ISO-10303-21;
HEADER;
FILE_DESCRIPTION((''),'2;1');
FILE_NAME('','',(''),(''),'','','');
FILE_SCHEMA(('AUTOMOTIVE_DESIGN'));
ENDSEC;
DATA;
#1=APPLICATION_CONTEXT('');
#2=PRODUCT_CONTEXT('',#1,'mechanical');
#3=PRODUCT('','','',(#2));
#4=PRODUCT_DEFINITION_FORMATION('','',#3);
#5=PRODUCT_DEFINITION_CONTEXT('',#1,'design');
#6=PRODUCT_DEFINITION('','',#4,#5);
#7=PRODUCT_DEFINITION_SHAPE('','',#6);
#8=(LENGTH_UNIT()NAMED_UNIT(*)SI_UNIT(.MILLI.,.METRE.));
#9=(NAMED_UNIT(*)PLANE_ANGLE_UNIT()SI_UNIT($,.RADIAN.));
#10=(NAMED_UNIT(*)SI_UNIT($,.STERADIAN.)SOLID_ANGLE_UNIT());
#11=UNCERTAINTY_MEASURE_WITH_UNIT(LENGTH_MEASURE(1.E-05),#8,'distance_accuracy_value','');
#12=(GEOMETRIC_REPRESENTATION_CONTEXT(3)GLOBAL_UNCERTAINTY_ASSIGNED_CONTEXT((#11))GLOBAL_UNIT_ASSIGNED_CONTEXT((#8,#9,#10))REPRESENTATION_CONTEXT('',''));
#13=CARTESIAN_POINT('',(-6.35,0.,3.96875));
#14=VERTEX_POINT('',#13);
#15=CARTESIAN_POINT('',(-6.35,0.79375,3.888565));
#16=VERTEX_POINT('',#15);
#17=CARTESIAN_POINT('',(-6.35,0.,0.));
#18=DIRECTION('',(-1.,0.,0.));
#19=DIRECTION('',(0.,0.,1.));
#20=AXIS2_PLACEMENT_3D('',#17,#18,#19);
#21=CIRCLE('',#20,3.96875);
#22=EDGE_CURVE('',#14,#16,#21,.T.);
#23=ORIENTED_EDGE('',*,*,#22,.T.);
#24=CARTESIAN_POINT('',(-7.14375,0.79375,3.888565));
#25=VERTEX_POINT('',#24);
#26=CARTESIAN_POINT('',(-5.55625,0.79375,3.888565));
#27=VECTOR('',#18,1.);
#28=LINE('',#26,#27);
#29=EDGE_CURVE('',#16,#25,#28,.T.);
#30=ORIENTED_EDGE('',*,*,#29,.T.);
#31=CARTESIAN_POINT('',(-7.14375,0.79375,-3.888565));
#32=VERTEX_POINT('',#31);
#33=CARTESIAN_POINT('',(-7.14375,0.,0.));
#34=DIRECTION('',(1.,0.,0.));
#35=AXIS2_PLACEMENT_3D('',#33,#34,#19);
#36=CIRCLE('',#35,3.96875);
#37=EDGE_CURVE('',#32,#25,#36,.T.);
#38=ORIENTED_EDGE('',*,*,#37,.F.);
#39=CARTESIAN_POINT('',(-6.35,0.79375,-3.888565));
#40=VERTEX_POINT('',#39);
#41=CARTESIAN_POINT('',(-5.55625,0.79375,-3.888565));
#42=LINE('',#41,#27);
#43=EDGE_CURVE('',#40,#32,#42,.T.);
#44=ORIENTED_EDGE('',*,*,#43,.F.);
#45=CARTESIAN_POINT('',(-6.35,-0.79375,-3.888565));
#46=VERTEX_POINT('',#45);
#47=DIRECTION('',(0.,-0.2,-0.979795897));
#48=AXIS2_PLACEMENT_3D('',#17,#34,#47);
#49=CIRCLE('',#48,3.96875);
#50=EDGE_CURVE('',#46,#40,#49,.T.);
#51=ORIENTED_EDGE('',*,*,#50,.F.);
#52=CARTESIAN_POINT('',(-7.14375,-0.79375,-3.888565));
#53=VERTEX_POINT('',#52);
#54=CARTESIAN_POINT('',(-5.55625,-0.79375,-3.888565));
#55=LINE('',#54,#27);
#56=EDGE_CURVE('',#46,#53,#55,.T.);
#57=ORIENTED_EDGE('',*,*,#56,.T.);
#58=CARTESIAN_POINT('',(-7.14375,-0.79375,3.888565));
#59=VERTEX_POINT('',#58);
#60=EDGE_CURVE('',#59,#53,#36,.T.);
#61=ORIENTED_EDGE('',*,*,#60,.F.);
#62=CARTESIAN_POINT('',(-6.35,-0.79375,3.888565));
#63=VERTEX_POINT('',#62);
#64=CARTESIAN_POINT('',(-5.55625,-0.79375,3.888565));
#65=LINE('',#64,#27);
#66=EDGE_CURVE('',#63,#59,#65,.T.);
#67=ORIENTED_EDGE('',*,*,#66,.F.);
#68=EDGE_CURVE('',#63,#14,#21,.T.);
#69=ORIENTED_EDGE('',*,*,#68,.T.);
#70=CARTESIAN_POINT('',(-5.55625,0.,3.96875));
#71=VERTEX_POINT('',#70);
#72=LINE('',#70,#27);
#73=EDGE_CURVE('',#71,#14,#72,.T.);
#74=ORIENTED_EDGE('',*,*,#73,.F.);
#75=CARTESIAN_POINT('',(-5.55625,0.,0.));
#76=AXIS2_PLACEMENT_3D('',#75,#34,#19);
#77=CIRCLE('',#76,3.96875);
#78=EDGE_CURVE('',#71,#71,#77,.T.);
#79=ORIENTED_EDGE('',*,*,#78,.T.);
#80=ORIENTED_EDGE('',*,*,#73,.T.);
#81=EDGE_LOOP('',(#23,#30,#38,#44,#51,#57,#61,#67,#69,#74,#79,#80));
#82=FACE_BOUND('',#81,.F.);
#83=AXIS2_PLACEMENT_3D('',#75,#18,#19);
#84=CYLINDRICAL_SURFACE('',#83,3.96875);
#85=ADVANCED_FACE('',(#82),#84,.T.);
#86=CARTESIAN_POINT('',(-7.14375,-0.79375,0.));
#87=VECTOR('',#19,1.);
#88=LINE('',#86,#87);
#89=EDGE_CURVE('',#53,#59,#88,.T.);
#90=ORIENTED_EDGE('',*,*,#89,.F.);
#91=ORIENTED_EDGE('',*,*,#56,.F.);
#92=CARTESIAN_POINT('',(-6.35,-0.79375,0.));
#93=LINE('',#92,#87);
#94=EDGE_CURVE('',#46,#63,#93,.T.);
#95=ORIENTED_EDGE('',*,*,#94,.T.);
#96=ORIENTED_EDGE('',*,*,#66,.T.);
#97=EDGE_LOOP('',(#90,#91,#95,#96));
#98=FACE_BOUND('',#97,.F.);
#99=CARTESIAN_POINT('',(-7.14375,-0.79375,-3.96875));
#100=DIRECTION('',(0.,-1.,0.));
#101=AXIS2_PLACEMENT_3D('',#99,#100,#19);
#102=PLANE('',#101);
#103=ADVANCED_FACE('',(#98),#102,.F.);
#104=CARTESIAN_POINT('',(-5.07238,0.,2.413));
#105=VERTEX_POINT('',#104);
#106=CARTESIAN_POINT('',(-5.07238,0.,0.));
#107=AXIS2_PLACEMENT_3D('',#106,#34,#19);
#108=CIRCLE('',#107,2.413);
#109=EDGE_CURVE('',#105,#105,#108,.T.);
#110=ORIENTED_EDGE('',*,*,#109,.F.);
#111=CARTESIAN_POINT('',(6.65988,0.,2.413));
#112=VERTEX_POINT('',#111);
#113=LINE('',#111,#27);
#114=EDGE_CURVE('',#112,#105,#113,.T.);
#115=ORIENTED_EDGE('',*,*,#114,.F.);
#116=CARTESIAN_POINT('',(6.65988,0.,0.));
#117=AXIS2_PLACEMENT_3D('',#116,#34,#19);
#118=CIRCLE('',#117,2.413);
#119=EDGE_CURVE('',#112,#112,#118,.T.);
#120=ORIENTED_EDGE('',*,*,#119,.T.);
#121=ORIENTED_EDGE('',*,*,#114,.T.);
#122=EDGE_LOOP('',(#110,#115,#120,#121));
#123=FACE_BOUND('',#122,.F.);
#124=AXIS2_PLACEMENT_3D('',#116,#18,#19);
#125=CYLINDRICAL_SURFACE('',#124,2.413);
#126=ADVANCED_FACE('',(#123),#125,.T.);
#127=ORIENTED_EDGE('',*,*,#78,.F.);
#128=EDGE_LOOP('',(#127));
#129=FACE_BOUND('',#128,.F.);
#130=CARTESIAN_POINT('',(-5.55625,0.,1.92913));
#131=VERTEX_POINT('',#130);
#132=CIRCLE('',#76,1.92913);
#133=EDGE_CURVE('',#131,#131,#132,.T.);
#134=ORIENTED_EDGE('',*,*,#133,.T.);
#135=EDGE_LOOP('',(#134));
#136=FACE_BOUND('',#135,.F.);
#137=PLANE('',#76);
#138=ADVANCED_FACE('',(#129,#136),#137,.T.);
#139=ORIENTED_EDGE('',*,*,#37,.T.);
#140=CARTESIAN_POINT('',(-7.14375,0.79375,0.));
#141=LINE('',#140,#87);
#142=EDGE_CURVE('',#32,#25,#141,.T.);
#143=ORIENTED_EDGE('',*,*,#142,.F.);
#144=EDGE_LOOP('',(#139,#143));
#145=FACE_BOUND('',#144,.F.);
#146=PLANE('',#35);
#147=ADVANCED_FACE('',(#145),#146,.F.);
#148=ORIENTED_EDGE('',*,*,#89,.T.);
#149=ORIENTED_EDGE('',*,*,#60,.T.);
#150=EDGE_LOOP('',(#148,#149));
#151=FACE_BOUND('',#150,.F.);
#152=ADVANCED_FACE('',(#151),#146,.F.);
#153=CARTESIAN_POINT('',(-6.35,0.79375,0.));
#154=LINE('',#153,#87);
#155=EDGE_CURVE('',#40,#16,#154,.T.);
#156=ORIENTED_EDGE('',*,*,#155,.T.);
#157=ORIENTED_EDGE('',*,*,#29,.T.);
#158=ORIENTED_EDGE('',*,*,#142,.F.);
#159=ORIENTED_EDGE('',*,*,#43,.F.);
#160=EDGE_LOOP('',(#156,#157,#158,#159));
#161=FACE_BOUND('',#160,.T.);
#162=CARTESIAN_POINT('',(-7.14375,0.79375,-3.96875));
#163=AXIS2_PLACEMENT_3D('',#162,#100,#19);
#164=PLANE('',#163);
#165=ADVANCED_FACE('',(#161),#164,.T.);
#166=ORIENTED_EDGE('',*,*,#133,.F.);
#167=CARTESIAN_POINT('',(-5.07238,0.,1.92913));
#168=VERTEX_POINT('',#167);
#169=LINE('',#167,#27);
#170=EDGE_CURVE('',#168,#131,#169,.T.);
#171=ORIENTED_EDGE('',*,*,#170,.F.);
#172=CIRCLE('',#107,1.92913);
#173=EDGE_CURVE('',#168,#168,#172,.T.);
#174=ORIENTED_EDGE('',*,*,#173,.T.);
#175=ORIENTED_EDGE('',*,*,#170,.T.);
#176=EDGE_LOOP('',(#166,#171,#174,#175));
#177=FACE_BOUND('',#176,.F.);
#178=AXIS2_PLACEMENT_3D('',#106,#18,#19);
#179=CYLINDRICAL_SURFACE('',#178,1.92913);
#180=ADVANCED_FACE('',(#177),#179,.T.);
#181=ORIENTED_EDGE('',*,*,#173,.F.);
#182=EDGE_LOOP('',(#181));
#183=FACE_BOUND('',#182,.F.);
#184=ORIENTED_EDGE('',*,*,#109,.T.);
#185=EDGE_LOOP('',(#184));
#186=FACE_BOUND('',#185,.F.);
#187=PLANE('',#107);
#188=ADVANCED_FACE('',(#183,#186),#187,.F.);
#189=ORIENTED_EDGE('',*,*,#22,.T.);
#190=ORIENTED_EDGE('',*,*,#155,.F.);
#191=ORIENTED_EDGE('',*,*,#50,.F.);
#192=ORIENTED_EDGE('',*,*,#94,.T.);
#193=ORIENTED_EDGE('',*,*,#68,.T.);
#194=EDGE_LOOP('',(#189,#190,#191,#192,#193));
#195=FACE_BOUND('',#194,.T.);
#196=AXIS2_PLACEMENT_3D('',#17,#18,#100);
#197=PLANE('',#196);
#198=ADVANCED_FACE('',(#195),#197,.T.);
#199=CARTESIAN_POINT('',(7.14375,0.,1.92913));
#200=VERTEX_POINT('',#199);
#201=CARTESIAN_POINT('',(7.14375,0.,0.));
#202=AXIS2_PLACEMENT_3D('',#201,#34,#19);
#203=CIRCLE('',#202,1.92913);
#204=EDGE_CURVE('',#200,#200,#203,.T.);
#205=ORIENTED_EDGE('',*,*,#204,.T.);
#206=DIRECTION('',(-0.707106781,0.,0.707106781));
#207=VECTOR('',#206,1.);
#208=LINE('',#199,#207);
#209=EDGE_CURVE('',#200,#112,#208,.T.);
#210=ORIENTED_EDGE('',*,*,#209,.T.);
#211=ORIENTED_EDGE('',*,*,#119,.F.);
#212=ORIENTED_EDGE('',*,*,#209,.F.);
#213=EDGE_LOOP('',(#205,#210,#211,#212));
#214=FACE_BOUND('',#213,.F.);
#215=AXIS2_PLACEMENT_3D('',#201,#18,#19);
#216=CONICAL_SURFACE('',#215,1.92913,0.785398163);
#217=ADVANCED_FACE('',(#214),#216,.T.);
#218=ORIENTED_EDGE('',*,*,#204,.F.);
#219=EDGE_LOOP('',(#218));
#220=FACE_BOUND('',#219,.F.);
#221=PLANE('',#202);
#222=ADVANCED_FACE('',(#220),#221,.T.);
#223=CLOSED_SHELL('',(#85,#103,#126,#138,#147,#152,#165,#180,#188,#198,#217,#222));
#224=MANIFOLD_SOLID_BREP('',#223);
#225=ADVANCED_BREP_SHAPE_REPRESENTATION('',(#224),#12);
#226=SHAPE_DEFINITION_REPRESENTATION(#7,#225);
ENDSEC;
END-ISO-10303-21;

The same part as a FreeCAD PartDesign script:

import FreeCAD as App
import Part
import Sketcher
from FreeCAD import Vector
Q = App.Units.Quantity

doc = App.newDocument("Part")
body = doc.addObject("PartDesign::Body", "Body")

# Sketch on XZ plane
sketch1 = doc.addObject("Sketcher::SketchObject", "Sketch")
body.addObject(sketch1)
sketch1.AttachmentSupport = (doc.XZ_Plane, [""])
sketch1.MapMode = "FlatFace"
sketch1.addGeometry([
    Part.LineSegment(Vector(-7.14375, 3.96875, 0), Vector(-7.14375, 0, 0)),  # 0
    Part.LineSegment(Vector(-7.14375, 0, 0), Vector(7.14375, 0, 0)),  # 1
    Part.LineSegment(Vector(7.14375, 0, 0), Vector(7.14375, 1.92913, 0)),  # 2
    Part.LineSegment(Vector(7.14375, 1.92913, 0), Vector(6.65988, 2.413, 0)),  # 3
    Part.LineSegment(Vector(6.65988, 2.413, 0), Vector(-5.07238, 2.413, 0)),  # 4
    Part.LineSegment(Vector(-5.07238, 2.413, 0), Vector(-5.07238, 1.92913, 0)),  # 5
    Part.LineSegment(Vector(-5.07238, 1.92913, 0), Vector(-5.55625, 1.92913, 0)),  # 6
    Part.LineSegment(Vector(-5.55625, 1.92913, 0), Vector(-5.55625, 3.96875, 0)),  # 7
    Part.LineSegment(Vector(-5.55625, 3.96875, 0), Vector(-7.14375, 3.96875, 0)),  # 8
], False)
sketch1.addConstraint([
    Sketcher.Constraint("Coincident", 0, 2, 1, 1),
    Sketcher.Constraint("Coincident", 1, 2, 2, 1),
    Sketcher.Constraint("Coincident", 2, 2, 3, 1),
    Sketcher.Constraint("Coincident", 3, 2, 4, 1),
    Sketcher.Constraint("Coincident", 4, 2, 5, 1),
    Sketcher.Constraint("Coincident", 5, 2, 6, 1),
    Sketcher.Constraint("Coincident", 6, 2, 7, 1),
    Sketcher.Constraint("Coincident", 7, 2, 8, 1),
    Sketcher.Constraint("Coincident", 8, 2, 0, 1),
    Sketcher.Constraint("Vertical", 0),
    Sketcher.Constraint("Horizontal", 1),
    Sketcher.Constraint("Vertical", 2),
    Sketcher.Constraint("Horizontal", 4),
    Sketcher.Constraint("Vertical", 5),
    Sketcher.Constraint("Horizontal", 6),
    Sketcher.Constraint("Vertical", 7),
    Sketcher.Constraint("Horizontal", 8),
    Sketcher.Constraint("Symmetric", 0, 2, 1, 2, -1, 1),
    Sketcher.Constraint("Horizontal", 2, 2, 5, 2),
    Sketcher.Constraint("Equal", 6, 5),
    Sketcher.Constraint("Angle", 3, Q("135 deg")),
    Sketcher.Constraint("DistanceX", 6, 2, 2, 2, Q("0.5 in")),
    Sketcher.Constraint("DistanceX", 1, 1, 1, 2, Q("0.5625 in")),
    Sketcher.Constraint("DistanceY", 0, 2, 0, 1, Q("0.15625 in")),
    Sketcher.Constraint("DistanceX", 4, 2, 4, 1, Q("0.4619 in")),
    Sketcher.Constraint("DistanceY", 7, 1, 7, 2, Q("0.0803 in")),
])
revolution = doc.addObject("PartDesign::Revolution", "Revolution")
body.addObject(revolution)
revolution.Profile = sketch1
revolution.ReferenceAxis = (sketch1, ["H_Axis"])
revolution.Angle = 360

# Sketch on YZ plane
sketch2 = doc.addObject("Sketcher::SketchObject", "Sketch001")
body.addObject(sketch2)
sketch2.AttachmentSupport = (doc.YZ_Plane, [""])
sketch2.MapMode = "FlatFace"
sketch2.AttachmentOffset = App.Placement(Vector(0, 0, -0.28125 * 25.4), App.Rotation())
sketch2.addGeometry([
    Part.LineSegment(Vector(0.79375, 3.96875, 0), Vector(0.79375, -3.96875, 0)),
    Part.LineSegment(Vector(0.79375, -3.96875, 0), Vector(-0.79375, -3.96875, 0)),
    Part.LineSegment(Vector(-0.79375, -3.96875, 0), Vector(-0.79375, 3.96875, 0)),
    Part.LineSegment(Vector(-0.79375, 3.96875, 0), Vector(0.79375, 3.96875, 0)),
], False)
sketch2.addConstraint([
    Sketcher.Constraint("Coincident", 0, 2, 1, 1),
    Sketcher.Constraint("Coincident", 1, 2, 2, 1),
    Sketcher.Constraint("Coincident", 2, 2, 3, 1),
    Sketcher.Constraint("Coincident", 3, 2, 0, 1),
    Sketcher.Constraint("Vertical", 0),
    Sketcher.Constraint("Horizontal", 1),
    Sketcher.Constraint("Vertical", 2),
    Sketcher.Constraint("Horizontal", 3),
    Sketcher.Constraint("Symmetric", 0, 2, 2, 2, -1, 1),
    Sketcher.Constraint("DistanceX", 1, 2, 1, 1, Q("0.0625 in")),
    Sketcher.Constraint("DistanceY", 0, 2, 0, 1, Q("0.3125 in")),
])
pocket1 = doc.addObject("PartDesign::Pocket", "Pocket")
body.addObject(pocket1)
pocket1.Profile = sketch2
pocket1.Length = Q("0.03125 in")
pocket1.Reversed = True

doc.recompute()
